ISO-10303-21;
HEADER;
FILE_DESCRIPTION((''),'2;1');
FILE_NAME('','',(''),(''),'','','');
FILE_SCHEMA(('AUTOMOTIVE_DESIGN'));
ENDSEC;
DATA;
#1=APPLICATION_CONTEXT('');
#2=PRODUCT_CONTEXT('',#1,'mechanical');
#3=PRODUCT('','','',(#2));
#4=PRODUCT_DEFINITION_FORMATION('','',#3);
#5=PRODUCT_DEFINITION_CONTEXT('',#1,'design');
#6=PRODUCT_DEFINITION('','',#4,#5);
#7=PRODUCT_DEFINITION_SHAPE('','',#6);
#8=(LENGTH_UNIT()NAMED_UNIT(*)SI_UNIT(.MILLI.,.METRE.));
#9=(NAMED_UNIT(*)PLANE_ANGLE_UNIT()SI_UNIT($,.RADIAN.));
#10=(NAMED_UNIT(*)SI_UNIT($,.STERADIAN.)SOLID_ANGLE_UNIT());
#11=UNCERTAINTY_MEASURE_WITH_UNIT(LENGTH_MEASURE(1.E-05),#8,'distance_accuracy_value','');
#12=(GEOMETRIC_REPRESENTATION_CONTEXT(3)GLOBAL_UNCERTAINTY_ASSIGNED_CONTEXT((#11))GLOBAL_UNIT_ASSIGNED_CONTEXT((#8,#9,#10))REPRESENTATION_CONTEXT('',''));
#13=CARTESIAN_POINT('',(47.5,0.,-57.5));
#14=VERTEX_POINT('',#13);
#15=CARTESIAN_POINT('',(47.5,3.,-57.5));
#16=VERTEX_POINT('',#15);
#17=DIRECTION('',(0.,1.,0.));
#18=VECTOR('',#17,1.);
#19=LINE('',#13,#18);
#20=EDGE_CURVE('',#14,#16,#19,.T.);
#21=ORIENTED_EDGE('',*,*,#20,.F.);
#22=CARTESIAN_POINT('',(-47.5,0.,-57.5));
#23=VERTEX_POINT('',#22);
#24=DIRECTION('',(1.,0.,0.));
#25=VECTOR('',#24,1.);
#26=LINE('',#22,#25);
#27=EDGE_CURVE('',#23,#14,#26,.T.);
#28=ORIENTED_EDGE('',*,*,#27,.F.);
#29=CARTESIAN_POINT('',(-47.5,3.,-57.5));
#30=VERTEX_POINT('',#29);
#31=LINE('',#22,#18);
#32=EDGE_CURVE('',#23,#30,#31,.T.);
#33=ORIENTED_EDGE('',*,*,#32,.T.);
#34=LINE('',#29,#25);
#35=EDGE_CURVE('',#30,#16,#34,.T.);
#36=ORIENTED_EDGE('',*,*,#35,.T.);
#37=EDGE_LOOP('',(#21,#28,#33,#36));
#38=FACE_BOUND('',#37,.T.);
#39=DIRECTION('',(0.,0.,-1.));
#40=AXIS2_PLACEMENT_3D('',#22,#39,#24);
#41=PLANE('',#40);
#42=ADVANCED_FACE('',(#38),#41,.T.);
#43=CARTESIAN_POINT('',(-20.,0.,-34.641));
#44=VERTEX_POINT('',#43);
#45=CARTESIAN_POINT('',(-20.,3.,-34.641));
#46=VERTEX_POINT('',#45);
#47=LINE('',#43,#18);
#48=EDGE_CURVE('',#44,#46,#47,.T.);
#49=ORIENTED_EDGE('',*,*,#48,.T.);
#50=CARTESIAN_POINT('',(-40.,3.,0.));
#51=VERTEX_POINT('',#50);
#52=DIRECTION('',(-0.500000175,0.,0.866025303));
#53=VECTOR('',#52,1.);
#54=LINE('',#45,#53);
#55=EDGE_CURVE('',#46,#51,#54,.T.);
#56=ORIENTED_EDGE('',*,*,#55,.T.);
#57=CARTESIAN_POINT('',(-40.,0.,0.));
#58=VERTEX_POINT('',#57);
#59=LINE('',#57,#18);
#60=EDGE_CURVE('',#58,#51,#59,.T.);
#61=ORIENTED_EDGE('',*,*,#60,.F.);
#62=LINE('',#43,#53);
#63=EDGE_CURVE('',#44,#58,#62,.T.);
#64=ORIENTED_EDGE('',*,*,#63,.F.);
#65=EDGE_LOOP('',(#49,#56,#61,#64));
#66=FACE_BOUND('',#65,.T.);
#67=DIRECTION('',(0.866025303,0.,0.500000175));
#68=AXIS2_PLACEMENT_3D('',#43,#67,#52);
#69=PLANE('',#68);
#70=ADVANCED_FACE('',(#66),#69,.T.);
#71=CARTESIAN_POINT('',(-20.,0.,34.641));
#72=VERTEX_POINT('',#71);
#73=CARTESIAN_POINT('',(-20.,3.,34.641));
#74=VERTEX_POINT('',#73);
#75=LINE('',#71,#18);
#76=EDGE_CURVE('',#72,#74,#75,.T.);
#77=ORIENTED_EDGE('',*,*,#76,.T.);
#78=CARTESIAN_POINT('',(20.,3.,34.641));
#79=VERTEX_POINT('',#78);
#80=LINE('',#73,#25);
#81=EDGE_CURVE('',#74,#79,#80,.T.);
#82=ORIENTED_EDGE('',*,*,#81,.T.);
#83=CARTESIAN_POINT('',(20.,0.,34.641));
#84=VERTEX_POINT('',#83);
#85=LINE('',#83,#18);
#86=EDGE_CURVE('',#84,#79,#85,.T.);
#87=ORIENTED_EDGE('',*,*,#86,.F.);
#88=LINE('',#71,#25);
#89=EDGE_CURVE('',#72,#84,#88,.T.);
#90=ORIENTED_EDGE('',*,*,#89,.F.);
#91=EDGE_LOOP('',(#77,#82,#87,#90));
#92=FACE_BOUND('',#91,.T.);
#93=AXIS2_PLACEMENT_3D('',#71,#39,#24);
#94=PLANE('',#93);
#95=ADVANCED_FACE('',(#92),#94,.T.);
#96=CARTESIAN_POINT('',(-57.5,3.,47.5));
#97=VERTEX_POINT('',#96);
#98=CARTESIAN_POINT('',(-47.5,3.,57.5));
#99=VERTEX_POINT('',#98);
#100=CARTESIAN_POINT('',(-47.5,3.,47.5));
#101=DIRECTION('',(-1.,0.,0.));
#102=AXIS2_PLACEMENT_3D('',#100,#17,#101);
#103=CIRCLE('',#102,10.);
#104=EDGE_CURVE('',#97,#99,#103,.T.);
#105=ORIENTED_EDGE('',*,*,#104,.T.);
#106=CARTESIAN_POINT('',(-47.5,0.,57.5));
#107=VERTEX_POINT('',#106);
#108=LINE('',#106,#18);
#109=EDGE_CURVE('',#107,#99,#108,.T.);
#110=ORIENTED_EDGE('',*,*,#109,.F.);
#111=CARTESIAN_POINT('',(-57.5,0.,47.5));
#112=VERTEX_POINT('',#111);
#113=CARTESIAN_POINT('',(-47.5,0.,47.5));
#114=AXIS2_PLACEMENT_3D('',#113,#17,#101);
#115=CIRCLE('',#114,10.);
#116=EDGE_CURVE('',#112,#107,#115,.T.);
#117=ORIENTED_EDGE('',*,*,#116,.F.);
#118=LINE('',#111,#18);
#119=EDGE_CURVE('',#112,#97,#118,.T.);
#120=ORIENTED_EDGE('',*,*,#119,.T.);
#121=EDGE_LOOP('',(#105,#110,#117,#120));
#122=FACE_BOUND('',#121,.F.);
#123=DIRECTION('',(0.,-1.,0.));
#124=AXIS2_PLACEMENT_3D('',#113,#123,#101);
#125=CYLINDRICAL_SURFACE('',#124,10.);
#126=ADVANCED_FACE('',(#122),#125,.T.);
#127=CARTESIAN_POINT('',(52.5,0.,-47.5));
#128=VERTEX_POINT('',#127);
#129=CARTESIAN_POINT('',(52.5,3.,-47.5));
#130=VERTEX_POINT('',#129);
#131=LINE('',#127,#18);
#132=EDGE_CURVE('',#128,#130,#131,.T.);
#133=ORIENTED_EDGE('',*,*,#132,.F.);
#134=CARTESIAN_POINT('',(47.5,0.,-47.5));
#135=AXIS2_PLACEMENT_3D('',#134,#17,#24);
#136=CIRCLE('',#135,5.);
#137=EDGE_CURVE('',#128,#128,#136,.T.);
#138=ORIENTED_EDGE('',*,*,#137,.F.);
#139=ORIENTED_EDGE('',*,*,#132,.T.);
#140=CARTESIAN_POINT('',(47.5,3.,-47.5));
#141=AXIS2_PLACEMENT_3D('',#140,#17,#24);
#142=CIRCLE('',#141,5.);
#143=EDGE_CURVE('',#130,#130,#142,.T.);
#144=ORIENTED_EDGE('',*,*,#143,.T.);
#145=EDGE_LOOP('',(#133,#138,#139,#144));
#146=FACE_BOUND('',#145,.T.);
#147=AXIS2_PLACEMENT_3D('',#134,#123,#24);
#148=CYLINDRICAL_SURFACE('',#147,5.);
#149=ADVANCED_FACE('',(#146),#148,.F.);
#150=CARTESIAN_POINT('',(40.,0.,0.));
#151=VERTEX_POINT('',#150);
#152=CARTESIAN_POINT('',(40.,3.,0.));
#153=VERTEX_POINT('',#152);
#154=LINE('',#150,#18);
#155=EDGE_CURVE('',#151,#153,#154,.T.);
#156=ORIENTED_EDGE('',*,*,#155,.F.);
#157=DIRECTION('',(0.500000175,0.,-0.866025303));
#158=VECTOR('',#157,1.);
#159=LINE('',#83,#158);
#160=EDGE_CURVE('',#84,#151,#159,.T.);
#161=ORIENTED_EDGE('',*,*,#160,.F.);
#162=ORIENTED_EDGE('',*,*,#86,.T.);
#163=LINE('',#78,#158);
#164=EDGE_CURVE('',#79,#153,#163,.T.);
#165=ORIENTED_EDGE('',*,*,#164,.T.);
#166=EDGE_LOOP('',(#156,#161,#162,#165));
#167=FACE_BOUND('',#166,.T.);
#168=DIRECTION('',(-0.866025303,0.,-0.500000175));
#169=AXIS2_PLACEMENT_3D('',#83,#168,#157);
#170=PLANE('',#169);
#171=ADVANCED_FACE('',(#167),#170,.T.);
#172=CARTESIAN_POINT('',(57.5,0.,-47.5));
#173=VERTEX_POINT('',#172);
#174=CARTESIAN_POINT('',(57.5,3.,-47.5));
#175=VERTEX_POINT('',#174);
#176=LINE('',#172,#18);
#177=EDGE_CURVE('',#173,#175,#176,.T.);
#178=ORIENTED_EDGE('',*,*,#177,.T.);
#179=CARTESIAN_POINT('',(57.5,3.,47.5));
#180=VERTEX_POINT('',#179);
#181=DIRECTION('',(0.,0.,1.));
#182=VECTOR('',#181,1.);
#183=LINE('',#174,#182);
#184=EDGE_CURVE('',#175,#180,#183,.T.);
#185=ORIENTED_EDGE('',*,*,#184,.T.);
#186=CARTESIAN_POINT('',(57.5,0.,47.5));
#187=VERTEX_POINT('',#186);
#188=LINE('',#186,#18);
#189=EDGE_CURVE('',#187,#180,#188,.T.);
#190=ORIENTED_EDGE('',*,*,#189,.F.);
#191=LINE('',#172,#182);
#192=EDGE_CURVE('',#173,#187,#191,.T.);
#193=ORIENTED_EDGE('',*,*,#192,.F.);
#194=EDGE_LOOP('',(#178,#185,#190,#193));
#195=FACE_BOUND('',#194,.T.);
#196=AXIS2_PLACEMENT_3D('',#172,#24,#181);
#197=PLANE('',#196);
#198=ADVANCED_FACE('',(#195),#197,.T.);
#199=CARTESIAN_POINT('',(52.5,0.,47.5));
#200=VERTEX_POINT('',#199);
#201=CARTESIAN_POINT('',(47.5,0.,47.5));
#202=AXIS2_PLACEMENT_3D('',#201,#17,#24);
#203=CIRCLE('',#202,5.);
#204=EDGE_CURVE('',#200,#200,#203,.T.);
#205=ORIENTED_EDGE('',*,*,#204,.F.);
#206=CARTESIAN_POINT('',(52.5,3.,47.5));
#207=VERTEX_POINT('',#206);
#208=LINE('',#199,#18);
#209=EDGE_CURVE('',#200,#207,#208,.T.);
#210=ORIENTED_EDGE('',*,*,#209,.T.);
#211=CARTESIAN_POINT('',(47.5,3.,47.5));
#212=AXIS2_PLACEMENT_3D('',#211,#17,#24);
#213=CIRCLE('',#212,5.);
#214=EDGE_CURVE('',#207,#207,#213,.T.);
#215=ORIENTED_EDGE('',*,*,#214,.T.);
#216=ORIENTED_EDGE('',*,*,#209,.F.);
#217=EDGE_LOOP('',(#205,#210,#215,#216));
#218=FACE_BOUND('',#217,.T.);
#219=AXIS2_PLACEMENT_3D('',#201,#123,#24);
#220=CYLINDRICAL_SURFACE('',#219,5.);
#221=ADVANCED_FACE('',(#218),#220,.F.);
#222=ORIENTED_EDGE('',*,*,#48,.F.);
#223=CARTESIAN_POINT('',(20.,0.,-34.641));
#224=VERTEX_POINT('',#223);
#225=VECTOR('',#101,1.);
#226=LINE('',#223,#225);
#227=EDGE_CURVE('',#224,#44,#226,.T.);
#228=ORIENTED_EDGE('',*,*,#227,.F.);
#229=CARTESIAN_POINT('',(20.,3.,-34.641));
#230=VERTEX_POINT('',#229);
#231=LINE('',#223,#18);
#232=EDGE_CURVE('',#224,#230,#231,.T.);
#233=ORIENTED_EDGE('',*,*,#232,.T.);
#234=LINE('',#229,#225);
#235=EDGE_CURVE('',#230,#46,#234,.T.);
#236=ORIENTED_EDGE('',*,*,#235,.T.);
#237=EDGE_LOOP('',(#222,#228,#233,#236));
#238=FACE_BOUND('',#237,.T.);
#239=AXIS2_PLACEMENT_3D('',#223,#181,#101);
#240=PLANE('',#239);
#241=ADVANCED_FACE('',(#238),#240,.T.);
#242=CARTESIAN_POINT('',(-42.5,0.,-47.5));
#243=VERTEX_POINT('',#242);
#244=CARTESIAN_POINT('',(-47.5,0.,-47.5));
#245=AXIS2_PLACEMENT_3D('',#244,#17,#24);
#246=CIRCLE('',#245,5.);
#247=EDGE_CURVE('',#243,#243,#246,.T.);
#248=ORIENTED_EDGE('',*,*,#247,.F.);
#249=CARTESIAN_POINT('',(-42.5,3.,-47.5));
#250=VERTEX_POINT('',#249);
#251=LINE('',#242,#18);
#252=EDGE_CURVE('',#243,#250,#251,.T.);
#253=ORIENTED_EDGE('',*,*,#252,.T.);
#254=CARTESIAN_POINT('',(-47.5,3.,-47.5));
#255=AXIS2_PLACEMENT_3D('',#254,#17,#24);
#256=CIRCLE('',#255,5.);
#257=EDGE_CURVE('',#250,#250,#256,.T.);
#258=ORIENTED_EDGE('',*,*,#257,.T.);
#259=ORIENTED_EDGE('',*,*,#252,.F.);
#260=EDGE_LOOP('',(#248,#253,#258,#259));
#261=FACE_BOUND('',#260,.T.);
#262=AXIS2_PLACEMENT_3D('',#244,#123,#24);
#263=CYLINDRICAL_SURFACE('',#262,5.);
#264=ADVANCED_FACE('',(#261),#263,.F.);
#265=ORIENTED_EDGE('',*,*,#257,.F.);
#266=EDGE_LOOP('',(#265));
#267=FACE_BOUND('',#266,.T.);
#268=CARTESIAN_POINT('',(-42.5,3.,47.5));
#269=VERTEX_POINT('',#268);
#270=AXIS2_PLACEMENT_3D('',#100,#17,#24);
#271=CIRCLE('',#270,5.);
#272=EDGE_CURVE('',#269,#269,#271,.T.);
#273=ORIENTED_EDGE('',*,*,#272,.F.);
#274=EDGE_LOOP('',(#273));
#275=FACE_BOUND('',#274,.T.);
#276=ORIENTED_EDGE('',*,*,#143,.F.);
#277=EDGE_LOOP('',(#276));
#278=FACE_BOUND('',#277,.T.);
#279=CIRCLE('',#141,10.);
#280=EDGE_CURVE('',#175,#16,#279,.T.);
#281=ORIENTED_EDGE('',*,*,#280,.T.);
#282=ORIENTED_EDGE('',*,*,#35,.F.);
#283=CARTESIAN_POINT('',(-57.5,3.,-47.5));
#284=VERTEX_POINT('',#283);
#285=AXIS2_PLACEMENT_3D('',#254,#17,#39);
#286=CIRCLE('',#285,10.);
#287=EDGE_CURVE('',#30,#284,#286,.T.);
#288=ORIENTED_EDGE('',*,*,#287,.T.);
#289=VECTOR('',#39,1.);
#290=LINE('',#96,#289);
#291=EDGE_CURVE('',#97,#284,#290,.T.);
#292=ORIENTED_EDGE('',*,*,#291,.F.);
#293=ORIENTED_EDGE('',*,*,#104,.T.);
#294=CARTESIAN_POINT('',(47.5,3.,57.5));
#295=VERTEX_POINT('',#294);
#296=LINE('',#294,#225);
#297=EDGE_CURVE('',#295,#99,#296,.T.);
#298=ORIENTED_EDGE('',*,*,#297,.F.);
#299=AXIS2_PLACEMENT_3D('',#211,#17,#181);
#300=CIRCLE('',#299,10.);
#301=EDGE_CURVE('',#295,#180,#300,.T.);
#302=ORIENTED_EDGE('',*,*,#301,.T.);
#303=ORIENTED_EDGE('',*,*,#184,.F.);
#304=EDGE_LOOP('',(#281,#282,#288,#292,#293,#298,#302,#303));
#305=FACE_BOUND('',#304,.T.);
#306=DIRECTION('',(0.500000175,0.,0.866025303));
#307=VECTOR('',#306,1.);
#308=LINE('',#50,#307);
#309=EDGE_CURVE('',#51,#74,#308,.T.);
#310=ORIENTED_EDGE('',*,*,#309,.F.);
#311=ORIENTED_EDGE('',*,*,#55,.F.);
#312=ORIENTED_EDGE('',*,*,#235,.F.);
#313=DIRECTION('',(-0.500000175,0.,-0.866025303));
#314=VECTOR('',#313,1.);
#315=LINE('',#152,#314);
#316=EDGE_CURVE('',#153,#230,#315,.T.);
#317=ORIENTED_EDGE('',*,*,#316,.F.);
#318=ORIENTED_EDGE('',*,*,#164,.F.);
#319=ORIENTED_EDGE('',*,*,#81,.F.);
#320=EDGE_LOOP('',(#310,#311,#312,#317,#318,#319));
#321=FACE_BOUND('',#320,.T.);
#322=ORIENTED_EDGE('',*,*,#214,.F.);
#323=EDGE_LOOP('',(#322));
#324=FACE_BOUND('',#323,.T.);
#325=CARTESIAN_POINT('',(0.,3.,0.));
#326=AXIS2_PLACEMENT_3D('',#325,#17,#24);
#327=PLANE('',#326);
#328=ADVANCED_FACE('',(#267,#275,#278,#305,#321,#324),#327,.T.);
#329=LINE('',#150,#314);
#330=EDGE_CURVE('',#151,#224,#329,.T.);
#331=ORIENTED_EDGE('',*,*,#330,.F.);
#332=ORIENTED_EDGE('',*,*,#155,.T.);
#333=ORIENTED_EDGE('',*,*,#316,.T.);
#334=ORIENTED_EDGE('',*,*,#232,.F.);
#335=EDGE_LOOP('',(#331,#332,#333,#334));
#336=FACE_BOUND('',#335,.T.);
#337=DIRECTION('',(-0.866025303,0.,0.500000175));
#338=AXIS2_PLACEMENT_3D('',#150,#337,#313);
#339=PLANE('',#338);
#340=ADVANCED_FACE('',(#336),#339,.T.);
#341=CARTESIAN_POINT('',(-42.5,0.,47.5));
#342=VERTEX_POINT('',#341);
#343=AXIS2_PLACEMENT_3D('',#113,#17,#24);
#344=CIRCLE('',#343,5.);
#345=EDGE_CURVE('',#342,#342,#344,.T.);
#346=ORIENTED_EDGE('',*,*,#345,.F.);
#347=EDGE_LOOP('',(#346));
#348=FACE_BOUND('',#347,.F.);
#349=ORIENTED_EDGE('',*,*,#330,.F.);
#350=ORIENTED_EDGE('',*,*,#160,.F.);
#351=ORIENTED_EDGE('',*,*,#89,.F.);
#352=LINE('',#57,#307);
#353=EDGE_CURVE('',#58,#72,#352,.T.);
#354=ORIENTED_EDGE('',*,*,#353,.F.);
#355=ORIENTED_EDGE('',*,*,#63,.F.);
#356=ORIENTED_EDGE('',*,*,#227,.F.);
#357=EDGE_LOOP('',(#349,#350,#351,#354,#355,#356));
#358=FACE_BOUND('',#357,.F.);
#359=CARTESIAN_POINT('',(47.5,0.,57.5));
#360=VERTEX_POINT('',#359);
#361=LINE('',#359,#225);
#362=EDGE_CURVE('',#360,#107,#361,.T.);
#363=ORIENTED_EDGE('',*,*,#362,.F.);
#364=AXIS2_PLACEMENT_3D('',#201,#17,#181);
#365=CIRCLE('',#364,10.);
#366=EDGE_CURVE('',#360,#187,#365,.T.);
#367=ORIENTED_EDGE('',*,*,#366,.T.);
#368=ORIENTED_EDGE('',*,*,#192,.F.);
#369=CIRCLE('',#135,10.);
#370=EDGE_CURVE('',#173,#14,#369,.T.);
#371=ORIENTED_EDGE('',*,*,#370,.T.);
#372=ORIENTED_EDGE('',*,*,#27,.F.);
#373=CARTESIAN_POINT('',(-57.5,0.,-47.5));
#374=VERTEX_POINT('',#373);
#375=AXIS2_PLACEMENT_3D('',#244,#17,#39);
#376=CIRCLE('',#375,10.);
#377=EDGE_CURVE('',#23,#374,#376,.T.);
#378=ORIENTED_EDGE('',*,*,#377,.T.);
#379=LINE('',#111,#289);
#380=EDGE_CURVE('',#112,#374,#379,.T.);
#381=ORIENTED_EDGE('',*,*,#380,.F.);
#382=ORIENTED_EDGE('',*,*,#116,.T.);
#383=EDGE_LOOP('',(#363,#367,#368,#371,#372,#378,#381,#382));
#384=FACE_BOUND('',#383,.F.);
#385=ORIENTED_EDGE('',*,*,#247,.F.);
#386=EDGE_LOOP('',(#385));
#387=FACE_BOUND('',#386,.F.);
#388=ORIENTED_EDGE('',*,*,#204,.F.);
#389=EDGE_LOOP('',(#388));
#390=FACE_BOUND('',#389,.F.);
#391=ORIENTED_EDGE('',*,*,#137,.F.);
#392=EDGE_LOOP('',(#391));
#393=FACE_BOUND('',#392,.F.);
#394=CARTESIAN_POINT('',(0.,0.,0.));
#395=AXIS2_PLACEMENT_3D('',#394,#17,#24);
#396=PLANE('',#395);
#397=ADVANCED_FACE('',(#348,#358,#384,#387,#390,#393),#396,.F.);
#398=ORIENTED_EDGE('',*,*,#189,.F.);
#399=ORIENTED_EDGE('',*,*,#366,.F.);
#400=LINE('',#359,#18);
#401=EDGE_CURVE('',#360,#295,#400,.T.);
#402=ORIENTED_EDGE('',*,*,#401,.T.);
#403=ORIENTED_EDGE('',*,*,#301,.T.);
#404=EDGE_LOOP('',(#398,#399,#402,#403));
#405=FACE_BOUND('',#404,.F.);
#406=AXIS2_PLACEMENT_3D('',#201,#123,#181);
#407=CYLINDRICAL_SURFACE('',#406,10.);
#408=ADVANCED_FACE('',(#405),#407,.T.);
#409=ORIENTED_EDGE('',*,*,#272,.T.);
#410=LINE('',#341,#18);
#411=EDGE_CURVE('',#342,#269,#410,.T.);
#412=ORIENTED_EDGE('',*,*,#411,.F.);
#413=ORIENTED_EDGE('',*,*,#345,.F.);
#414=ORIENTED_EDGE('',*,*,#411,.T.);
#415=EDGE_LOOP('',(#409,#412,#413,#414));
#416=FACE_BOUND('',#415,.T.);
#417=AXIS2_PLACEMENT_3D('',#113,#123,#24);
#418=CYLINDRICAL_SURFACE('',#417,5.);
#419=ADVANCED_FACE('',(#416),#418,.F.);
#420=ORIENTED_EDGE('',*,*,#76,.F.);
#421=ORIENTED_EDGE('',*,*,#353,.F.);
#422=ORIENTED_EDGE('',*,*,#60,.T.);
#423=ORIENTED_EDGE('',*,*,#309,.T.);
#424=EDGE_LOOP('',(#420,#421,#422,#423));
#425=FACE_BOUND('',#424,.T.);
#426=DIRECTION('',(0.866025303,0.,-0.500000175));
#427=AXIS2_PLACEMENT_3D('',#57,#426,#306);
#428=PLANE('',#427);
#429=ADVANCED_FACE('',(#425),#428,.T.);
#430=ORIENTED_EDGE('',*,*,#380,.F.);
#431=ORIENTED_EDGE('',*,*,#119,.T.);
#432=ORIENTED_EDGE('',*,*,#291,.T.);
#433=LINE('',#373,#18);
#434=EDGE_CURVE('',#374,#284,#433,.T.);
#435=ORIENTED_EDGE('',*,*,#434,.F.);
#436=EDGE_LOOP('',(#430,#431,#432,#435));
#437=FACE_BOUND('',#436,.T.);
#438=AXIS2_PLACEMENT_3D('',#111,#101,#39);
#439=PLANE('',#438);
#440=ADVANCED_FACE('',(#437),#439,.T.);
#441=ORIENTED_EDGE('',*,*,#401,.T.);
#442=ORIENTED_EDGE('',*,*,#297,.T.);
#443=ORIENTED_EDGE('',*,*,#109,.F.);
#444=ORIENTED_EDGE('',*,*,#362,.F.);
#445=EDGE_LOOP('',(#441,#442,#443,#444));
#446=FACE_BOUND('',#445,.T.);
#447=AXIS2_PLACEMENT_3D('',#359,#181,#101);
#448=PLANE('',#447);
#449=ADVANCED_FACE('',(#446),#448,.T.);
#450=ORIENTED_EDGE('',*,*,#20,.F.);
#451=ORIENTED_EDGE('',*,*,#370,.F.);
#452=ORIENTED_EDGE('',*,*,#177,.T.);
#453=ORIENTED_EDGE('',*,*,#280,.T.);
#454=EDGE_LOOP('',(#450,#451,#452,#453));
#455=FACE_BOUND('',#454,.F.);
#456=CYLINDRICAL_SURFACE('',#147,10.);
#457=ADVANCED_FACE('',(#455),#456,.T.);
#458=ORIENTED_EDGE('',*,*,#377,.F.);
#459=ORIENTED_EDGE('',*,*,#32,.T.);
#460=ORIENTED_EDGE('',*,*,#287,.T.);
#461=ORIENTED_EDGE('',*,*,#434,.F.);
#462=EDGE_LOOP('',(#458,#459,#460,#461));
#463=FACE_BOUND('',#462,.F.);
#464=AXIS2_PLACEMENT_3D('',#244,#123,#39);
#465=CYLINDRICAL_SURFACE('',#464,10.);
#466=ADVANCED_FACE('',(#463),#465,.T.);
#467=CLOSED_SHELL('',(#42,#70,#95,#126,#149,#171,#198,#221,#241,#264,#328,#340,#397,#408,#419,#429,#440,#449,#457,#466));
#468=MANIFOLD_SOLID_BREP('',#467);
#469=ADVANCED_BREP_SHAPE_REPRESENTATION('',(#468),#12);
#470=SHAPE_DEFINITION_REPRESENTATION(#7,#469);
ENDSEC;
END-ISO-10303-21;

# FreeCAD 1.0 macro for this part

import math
import FreeCAD as App
import Part
import Sketcher

V = App.Vector


def add_polygon(sketch, points):
    """Adds a closed chain of lines whose ends are joined by coincident constraints."""
    first, n = sketch.GeometryCount, len(points)
    for a, b in zip(points, points[1:] + points[:1]):
        sketch.addGeometry(Part.LineSegment(App.Vector(*a, 0), App.Vector(*b, 0)), False)
    for i in range(n):
        sketch.addConstraint(Sketcher.Constraint("Coincident", first + i, 2, first + (i + 1) % n, 1))

doc = App.newDocument("Part")
body = doc.addObject("PartDesign::Body", "Body")

sketch1 = body.newObject("Sketcher::SketchObject", "Sketch")
sketch1.AttachmentSupport = (doc.getObject("XZ_Plane"), [""])
sketch1.MapMode = "FlatFace"
sketch1.addGeometry(Part.LineSegment(V(-47.5, 57.5, 0), V(47.5, 57.5, 0)), False)
sketch1.addGeometry(Part.ArcOfCircle(Part.Circle(V(47.5, 47.5, 0), V(0, 0, 1), 10), math.radians(0), math.radians(90)), False)
sketch1.addGeometry(Part.LineSegment(V(57.5, 47.5, 0), V(57.5, -47.5, 0)), False)
sketch1.addGeometry(Part.ArcOfCircle(Part.Circle(V(47.5, -47.5, 0), V(0, 0, 1), 10), math.radians(-90), math.radians(0)), False)
sketch1.addGeometry(Part.LineSegment(V(47.5, -57.5, 0), V(-47.5, -57.5, 0)), False)
sketch1.addGeometry(Part.ArcOfCircle(Part.Circle(V(-47.5, -47.5, 0), V(0, 0, 1), 10), math.radians(180), math.radians(270)), False)
sketch1.addGeometry(Part.LineSegment(V(-57.5, -47.5, 0), V(-57.5, 47.5, 0)), False)
sketch1.addGeometry(Part.ArcOfCircle(Part.Circle(V(-47.5, 47.5, 0), V(0, 0, 1), 10), math.radians(90), math.radians(180)), False)
sketch1.addGeometry(Part.Circle(V(-47.5, 47.5, 0), V(0, 0, 1), 5), False)
sketch1.addGeometry(Part.Circle(V(47.5, 47.5, 0), V(0, 0, 1), 5), False)
sketch1.addGeometry(Part.Circle(V(-47.5, -47.5, 0), V(0, 0, 1), 5), False)
add_polygon(sketch1, [(20, -34.641), (40, 0), (20, 34.641), (-20, 34.641), (-40, 0), (-20, -34.641)])
sketch1.addGeometry(Part.Circle(V(47.5, -47.5, 0), V(0, 0, 1), 5), False)
sketch1.addConstraint([
    Sketcher.Constraint("Tangent", 0, 2, 1, 2),
    Sketcher.Constraint("Tangent", 1, 1, 2, 1),
    Sketcher.Constraint("Tangent", 2, 2, 3, 2),
    Sketcher.Constraint("Tangent", 3, 1, 4, 1),
    Sketcher.Constraint("Tangent", 4, 2, 5, 2),
    Sketcher.Constraint("Tangent", 5, 1, 6, 1),
    Sketcher.Constraint("Tangent", 6, 2, 7, 2),
    Sketcher.Constraint("Tangent", 7, 1, 0, 1),
    Sketcher.Constraint("Horizontal", 0),
    Sketcher.Constraint("Vertical", 2),
    Sketcher.Constraint("Horizontal", 4),
    Sketcher.Constraint("Vertical", 6),
    Sketcher.Constraint("Horizontal", 13),
    Sketcher.Constraint("Horizontal", 16),
    Sketcher.Constraint("Coincident", 8, 3, 7, 3),
    Sketcher.Constraint("Coincident", 9, 3, 1, 3),
    Sketcher.Constraint("Coincident", 10, 3, 5, 3),
    Sketcher.Constraint("Coincident", 17, 3, 3, 3),
    Sketcher.Constraint("Equal", 1, 3),
    Sketcher.Constraint("Equal", 3, 5),
    Sketcher.Constraint("Equal", 5, 7),
    Sketcher.Constraint("Equal", 8, 9),
    Sketcher.Constraint("Equal", 9, 10),
    Sketcher.Constraint("Equal", 10, 17),
    Sketcher.Constraint("Symmetric", 1, 3, 5, 3, -1, 1),
    Sketcher.Constraint("Symmetric", 11, 2, 14, 2, -1, 1),
    Sketcher.Constraint("Symmetric", 12, 2, 15, 2, -1, 1),
    Sketcher.Constraint("PointOnObject", 11, 2, -1),
    Sketcher.Constraint("Parallel", 11, 14),
    Sketcher.Constraint("Vertical", 13, 2, 15, 2),
    Sketcher.Constraint("Equal", 4, 2),
    Sketcher.Constraint("Diameter", 8, 10.0),
    Sketcher.Constraint("Radius", 1, 10.0),
    Sketcher.Constraint("DistanceX", 13, 2, 13, 1, 40.0),
    Sketcher.Constraint("Distance", 11, 40.0),
    Sketcher.Constraint("DistanceX", -1, 1, 11, 2, 40.0),
    Sketcher.Constraint("DistanceX", 0, 1, 0, 2, 95.0),
])
pad1 = body.newObject("PartDesign::Pad", "Pad")
pad1.Profile = sketch1
pad1.Length = 3
pad1.Reversed = True

doc.recompute()
